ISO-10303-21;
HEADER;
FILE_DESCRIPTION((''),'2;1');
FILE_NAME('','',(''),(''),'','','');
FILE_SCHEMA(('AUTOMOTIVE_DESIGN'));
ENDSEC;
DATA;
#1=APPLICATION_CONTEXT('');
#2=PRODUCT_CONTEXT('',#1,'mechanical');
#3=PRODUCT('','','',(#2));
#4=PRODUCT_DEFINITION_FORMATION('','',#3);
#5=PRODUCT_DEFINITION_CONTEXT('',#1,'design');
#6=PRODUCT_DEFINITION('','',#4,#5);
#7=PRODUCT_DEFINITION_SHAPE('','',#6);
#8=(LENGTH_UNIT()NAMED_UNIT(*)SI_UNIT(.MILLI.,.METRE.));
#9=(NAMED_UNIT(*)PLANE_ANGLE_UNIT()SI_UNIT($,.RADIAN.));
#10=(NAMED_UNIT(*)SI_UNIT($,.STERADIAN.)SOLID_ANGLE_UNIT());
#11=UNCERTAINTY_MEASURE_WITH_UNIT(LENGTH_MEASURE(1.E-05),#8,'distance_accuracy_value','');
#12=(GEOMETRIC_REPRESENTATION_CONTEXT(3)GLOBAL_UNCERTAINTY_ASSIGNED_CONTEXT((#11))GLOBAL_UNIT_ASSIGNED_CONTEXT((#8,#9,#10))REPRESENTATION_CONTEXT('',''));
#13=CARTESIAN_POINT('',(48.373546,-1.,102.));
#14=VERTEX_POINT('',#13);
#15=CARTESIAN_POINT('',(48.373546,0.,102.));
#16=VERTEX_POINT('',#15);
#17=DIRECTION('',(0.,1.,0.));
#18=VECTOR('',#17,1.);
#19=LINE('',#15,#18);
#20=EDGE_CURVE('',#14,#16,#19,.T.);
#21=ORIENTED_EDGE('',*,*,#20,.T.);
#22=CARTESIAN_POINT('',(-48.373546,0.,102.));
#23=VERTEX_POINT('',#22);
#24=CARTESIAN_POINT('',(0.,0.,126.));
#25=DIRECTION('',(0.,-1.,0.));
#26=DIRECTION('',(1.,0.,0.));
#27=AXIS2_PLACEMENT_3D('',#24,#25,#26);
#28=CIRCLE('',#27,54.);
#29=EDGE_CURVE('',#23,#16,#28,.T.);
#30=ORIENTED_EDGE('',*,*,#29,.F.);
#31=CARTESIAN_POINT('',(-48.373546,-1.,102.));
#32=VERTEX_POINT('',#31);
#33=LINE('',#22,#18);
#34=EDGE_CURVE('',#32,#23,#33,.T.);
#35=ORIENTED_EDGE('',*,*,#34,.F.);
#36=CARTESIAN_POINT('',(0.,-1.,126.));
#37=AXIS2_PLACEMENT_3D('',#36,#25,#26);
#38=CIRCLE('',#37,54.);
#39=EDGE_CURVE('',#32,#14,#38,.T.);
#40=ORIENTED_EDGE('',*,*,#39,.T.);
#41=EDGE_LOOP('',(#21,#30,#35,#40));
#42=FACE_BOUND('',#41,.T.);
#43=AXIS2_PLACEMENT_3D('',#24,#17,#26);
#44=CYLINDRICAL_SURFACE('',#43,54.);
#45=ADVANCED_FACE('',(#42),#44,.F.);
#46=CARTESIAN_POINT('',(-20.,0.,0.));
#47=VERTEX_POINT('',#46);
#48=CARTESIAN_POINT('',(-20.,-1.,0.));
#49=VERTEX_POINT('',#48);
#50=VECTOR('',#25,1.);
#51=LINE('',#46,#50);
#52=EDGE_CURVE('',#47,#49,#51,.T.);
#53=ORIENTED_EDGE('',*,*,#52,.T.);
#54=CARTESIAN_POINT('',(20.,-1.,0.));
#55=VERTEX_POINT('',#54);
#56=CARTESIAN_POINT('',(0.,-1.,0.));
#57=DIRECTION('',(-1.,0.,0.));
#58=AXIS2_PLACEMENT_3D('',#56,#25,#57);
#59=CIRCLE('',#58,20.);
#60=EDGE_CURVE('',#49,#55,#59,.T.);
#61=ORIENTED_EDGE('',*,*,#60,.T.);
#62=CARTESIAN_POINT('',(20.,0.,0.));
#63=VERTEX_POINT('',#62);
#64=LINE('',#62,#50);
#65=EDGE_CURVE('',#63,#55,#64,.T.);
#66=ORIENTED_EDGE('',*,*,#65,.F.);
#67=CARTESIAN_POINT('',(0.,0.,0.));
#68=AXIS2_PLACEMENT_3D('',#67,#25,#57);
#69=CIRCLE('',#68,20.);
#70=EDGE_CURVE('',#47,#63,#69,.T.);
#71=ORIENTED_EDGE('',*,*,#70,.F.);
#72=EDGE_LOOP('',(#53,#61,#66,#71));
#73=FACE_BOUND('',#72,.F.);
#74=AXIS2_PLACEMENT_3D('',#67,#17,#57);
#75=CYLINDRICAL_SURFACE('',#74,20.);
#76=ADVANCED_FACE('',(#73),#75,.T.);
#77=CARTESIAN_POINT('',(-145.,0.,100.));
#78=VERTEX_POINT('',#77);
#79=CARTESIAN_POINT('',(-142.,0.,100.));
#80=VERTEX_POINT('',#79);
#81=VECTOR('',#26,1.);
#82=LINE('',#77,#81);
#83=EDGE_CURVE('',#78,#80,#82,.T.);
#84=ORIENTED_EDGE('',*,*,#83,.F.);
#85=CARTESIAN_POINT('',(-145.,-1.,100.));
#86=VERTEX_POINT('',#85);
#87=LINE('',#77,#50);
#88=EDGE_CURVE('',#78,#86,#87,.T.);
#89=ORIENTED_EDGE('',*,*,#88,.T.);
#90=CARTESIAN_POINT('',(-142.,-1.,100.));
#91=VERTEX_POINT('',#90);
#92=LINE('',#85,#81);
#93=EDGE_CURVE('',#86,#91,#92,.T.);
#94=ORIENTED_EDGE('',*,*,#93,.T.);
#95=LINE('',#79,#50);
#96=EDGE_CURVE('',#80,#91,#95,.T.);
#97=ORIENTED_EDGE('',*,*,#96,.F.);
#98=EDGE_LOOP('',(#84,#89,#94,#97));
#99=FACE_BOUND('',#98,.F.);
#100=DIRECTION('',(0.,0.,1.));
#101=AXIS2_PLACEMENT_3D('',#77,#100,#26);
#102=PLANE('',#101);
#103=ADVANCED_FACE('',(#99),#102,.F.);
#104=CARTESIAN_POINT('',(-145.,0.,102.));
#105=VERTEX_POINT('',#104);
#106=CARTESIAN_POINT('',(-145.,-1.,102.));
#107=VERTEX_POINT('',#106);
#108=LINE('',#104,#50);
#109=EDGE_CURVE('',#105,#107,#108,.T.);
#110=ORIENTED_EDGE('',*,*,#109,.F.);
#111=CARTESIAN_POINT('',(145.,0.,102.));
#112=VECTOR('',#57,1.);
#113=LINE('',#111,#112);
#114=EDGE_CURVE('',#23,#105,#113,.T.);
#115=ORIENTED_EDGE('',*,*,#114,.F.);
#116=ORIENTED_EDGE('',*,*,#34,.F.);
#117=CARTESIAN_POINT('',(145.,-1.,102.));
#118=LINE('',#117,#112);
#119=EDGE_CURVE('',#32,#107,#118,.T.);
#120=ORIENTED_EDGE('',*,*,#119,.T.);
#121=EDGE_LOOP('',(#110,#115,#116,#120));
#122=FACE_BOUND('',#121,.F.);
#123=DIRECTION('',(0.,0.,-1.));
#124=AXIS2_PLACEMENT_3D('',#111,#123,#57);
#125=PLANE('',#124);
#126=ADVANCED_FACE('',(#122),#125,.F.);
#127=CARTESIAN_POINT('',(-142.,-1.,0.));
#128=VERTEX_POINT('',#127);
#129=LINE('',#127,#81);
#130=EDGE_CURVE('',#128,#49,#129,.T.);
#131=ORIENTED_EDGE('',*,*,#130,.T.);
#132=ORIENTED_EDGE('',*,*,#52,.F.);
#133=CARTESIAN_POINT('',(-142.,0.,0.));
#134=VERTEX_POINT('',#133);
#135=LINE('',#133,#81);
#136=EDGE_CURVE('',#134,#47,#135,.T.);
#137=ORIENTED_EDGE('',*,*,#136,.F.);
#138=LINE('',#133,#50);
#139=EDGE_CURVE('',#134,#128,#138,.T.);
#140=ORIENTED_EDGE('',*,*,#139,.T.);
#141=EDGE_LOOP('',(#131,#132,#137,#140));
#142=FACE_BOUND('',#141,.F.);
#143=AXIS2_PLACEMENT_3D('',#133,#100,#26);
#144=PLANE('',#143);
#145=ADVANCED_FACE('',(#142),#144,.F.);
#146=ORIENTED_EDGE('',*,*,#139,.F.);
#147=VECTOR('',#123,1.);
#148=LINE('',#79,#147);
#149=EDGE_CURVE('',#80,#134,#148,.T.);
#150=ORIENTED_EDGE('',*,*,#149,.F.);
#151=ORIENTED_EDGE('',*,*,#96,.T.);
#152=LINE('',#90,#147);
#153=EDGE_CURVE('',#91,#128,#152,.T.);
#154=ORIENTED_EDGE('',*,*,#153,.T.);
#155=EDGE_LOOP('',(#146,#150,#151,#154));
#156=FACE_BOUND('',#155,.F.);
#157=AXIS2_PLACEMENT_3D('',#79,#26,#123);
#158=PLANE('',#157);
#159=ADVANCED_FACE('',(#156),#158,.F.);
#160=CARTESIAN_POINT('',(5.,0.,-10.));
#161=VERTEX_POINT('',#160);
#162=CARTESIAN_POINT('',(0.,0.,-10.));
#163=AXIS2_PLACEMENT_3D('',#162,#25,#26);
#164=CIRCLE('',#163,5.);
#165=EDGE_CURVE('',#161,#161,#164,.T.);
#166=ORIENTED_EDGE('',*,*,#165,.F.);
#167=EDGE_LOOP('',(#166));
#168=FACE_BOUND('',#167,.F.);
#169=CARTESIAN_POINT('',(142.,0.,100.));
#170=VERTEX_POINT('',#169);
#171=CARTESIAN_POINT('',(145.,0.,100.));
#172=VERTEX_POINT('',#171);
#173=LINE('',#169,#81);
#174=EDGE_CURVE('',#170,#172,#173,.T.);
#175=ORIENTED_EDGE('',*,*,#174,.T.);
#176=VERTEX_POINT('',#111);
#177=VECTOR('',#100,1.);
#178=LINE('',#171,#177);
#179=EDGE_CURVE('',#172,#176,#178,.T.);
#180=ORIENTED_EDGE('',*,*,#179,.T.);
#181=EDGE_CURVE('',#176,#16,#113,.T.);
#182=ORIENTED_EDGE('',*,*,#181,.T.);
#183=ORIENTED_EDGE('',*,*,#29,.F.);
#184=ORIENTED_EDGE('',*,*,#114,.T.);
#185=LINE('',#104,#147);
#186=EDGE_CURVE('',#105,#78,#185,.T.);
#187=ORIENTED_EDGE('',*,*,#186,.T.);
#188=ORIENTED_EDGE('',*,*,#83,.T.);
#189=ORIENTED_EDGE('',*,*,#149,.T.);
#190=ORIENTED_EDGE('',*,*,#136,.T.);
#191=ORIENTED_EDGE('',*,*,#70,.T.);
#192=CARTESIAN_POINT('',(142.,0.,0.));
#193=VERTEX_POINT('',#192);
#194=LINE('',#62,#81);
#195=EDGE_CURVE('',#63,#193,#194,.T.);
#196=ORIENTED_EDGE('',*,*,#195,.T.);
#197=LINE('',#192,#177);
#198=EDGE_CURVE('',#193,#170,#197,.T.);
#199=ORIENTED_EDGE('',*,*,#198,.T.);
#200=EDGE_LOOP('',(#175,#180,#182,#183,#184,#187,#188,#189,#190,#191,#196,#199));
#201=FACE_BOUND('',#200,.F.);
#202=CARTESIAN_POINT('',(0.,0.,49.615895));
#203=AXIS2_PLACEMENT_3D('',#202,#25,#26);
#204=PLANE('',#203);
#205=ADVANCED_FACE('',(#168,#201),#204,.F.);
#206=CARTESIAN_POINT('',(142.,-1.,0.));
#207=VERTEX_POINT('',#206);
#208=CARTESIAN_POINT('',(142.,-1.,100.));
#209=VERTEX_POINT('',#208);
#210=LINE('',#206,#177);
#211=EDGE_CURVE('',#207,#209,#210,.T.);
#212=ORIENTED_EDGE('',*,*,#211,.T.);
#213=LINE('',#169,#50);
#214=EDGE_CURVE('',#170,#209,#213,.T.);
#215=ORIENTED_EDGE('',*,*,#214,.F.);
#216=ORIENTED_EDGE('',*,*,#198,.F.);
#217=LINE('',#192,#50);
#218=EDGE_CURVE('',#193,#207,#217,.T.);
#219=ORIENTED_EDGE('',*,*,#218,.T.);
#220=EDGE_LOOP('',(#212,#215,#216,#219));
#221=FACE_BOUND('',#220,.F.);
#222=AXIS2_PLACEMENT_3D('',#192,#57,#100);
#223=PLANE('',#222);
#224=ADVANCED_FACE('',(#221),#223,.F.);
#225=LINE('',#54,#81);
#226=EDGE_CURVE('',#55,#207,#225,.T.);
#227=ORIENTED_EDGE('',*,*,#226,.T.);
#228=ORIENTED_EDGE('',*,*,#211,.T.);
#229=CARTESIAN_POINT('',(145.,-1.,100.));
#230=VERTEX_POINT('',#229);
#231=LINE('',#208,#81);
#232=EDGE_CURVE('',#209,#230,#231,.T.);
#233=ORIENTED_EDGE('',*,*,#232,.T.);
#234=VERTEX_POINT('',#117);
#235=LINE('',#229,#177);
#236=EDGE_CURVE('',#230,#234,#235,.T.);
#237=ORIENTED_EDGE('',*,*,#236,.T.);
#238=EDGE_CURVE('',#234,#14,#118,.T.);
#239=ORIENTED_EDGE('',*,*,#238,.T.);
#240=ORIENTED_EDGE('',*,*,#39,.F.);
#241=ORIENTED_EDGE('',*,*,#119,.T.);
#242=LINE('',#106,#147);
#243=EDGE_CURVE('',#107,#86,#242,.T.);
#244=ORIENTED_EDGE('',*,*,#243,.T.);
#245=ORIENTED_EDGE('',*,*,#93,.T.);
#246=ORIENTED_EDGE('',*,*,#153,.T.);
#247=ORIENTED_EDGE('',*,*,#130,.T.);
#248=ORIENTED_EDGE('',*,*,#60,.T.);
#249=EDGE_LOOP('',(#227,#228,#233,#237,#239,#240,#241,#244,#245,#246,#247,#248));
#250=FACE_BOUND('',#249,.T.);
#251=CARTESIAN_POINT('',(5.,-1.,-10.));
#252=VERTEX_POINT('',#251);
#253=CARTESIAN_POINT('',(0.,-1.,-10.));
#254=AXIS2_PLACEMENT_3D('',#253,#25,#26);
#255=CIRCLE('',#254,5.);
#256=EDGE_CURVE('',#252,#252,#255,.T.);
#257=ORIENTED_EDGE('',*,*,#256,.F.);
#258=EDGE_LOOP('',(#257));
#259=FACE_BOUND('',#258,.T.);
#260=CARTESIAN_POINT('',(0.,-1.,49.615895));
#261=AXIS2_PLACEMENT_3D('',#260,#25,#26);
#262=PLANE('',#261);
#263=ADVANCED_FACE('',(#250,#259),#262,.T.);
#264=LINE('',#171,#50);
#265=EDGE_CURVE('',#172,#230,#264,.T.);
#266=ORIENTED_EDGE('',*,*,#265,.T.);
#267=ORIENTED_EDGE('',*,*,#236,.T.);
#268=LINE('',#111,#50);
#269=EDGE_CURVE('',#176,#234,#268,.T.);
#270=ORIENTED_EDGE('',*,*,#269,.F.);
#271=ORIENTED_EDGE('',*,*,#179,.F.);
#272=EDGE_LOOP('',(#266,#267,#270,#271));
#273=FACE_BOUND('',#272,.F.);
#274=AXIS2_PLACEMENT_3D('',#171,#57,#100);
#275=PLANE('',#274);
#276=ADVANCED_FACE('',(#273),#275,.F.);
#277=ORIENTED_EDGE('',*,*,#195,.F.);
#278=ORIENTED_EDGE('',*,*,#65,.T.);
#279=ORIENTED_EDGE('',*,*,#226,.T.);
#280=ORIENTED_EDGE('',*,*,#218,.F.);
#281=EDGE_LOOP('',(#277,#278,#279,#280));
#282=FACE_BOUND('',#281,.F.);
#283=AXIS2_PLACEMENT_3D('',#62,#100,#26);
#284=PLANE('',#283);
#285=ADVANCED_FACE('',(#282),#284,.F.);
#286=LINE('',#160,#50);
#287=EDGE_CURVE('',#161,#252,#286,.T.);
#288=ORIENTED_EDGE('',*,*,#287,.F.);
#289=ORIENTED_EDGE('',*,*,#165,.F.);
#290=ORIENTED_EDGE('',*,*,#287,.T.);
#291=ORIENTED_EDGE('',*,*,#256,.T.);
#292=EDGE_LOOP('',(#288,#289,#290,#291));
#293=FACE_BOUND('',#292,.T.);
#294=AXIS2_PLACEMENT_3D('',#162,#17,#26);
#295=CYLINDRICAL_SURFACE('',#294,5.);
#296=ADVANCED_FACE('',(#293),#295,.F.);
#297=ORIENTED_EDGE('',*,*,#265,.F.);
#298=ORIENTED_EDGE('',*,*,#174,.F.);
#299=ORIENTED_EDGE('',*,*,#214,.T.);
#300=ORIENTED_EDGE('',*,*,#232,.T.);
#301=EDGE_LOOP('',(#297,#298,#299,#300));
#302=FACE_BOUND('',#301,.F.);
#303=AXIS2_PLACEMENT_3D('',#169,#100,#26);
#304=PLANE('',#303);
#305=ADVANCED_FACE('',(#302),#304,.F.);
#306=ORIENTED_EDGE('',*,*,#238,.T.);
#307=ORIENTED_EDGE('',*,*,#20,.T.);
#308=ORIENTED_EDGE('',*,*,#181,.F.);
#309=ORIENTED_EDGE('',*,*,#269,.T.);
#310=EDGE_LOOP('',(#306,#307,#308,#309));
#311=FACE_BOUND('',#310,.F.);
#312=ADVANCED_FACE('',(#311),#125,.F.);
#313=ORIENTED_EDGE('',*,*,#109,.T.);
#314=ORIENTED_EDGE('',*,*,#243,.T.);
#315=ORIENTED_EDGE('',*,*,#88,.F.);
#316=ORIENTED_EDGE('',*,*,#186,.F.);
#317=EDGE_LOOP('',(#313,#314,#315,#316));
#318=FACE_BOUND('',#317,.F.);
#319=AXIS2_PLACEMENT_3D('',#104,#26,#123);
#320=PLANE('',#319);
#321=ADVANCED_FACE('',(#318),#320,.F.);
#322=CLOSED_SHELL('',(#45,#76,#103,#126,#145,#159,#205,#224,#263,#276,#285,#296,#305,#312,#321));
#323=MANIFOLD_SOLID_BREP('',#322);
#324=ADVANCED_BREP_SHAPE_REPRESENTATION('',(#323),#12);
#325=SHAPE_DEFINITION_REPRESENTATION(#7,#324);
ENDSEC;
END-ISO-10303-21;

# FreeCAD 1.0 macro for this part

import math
import FreeCAD as App
import Part
import Sketcher

V = App.Vector
Q = App.Units.Quantity

doc = App.newDocument("Part")
body = doc.addObject("PartDesign::Body", "Body")

sketch1 = doc.addObject("Sketcher::SketchObject", "Sketch")
body.addObject(sketch1)
sketch1.AttachmentSupport = (doc.XZ_Plane, [""])
sketch1.MapMode = "FlatFace"
sketch1.addGeometry([
    Part.LineSegment(V(145, 102, 0), V(-145, 102, 0)),
    Part.LineSegment(V(-145, 102, 0), V(-145, 100, 0)),
    Part.LineSegment(V(-145, 100, 0), V(-142, 100, 0)),
    Part.LineSegment(V(-142, 100, 0), V(-142, 0, 0)),
    Part.LineSegment(V(-142, 0, 0), V(-20, 0, 0)),
    Part.ArcOfCircle(Part.Circle(V(0, 0, 0), V(0, 0, 1), 20), math.radians(180), math.radians(360)),
    Part.LineSegment(V(20, 0, 0), V(142, 0, 0)),
    Part.LineSegment(V(142, 0, 0), V(142, 100, 0)),
    Part.LineSegment(V(142, 100, 0), V(145, 100, 0)),
    Part.LineSegment(V(145, 100, 0), V(145, 102, 0)),
    Part.Circle(V(0, -10, 0), V(0, 0, 1), 5),
], False)
sketch1.addConstraint([
    Sketcher.Constraint("Coincident", 0, 2, 1, 1),
    Sketcher.Constraint("Coincident", 1, 2, 2, 1),
    Sketcher.Constraint("Coincident", 2, 2, 3, 1),
    Sketcher.Constraint("Coincident", 3, 2, 4, 1),
    Sketcher.Constraint("Coincident", 4, 2, 5, 1),
    Sketcher.Constraint("Coincident", 5, 2, 6, 1),
    Sketcher.Constraint("Coincident", 6, 2, 7, 1),
    Sketcher.Constraint("Coincident", 7, 2, 8, 1),
    Sketcher.Constraint("Coincident", 8, 2, 9, 1),
    Sketcher.Constraint("Coincident", 9, 2, 0, 1),
    Sketcher.Constraint("Horizontal", 0),
    Sketcher.Constraint("Vertical", 1),
    Sketcher.Constraint("Horizontal", 2),
    Sketcher.Constraint("Vertical", 3),
    Sketcher.Constraint("Horizontal", 4),
    Sketcher.Constraint("Horizontal", 6),
    Sketcher.Constraint("Vertical", 7),
    Sketcher.Constraint("Horizontal", 8),
    Sketcher.Constraint("Vertical", 9),
    Sketcher.Constraint("Coincident", 5, 3, -1, 1),
    Sketcher.Constraint("Symmetric", 3, 2, 6, 2, -1, 1),
    Sketcher.Constraint("Symmetric", 1, 2, 8, 2, -2),
    Sketcher.Constraint("PointOnObject", 10, 3, -2),
    Sketcher.Constraint("PointOnObject", 3, 2, -1),
    Sketcher.Constraint("Diameter", 10, Q("10 mm")),
    Sketcher.Constraint("Radius", 5, Q("20 mm")),
    Sketcher.Constraint("DistanceX", 0, 2, 0, 1, Q("290 mm")),
    Sketcher.Constraint("DistanceX", 2, 1, 2, 2, Q("3 mm")),
    Sketcher.Constraint("DistanceY", 1, 2, 1, 1, Q("2 mm")),
    Sketcher.Constraint("DistanceY", 3, 2, 3, 1, Q("100 mm")),
    Sketcher.Constraint("DistanceY", 10, 3, -1, 1, Q("10 mm")),
])
pad1 = doc.addObject("PartDesign::Pad", "Pad")
body.addObject(pad1)
pad1.Profile = sketch1
pad1.Length = 1

sketch2 = doc.addObject("Sketcher::SketchObject", "Sketch001")
body.addObject(sketch2)
sketch2.AttachmentSupport = (doc.XZ_Plane, [""])
sketch2.MapMode = "FlatFace"
sketch2.addGeometry(Part.Circle(V(0, 126, 0), V(0, 0, 1), 54), False)
sketch2.addConstraint([
    Sketcher.Constraint("PointOnObject", 0, 3, -2),
    Sketcher.Constraint("Diameter", 0, Q("108 mm")),
    Sketcher.Constraint("DistanceY", -1, 1, 0, 3, Q("126 mm")),
])
pocket1 = doc.addObject("PartDesign::Pocket", "Pocket")
body.addObject(pocket1)
pocket1.Profile = sketch2
pocket1.Length = 1
pocket1.Reversed = True

doc.recompute()
